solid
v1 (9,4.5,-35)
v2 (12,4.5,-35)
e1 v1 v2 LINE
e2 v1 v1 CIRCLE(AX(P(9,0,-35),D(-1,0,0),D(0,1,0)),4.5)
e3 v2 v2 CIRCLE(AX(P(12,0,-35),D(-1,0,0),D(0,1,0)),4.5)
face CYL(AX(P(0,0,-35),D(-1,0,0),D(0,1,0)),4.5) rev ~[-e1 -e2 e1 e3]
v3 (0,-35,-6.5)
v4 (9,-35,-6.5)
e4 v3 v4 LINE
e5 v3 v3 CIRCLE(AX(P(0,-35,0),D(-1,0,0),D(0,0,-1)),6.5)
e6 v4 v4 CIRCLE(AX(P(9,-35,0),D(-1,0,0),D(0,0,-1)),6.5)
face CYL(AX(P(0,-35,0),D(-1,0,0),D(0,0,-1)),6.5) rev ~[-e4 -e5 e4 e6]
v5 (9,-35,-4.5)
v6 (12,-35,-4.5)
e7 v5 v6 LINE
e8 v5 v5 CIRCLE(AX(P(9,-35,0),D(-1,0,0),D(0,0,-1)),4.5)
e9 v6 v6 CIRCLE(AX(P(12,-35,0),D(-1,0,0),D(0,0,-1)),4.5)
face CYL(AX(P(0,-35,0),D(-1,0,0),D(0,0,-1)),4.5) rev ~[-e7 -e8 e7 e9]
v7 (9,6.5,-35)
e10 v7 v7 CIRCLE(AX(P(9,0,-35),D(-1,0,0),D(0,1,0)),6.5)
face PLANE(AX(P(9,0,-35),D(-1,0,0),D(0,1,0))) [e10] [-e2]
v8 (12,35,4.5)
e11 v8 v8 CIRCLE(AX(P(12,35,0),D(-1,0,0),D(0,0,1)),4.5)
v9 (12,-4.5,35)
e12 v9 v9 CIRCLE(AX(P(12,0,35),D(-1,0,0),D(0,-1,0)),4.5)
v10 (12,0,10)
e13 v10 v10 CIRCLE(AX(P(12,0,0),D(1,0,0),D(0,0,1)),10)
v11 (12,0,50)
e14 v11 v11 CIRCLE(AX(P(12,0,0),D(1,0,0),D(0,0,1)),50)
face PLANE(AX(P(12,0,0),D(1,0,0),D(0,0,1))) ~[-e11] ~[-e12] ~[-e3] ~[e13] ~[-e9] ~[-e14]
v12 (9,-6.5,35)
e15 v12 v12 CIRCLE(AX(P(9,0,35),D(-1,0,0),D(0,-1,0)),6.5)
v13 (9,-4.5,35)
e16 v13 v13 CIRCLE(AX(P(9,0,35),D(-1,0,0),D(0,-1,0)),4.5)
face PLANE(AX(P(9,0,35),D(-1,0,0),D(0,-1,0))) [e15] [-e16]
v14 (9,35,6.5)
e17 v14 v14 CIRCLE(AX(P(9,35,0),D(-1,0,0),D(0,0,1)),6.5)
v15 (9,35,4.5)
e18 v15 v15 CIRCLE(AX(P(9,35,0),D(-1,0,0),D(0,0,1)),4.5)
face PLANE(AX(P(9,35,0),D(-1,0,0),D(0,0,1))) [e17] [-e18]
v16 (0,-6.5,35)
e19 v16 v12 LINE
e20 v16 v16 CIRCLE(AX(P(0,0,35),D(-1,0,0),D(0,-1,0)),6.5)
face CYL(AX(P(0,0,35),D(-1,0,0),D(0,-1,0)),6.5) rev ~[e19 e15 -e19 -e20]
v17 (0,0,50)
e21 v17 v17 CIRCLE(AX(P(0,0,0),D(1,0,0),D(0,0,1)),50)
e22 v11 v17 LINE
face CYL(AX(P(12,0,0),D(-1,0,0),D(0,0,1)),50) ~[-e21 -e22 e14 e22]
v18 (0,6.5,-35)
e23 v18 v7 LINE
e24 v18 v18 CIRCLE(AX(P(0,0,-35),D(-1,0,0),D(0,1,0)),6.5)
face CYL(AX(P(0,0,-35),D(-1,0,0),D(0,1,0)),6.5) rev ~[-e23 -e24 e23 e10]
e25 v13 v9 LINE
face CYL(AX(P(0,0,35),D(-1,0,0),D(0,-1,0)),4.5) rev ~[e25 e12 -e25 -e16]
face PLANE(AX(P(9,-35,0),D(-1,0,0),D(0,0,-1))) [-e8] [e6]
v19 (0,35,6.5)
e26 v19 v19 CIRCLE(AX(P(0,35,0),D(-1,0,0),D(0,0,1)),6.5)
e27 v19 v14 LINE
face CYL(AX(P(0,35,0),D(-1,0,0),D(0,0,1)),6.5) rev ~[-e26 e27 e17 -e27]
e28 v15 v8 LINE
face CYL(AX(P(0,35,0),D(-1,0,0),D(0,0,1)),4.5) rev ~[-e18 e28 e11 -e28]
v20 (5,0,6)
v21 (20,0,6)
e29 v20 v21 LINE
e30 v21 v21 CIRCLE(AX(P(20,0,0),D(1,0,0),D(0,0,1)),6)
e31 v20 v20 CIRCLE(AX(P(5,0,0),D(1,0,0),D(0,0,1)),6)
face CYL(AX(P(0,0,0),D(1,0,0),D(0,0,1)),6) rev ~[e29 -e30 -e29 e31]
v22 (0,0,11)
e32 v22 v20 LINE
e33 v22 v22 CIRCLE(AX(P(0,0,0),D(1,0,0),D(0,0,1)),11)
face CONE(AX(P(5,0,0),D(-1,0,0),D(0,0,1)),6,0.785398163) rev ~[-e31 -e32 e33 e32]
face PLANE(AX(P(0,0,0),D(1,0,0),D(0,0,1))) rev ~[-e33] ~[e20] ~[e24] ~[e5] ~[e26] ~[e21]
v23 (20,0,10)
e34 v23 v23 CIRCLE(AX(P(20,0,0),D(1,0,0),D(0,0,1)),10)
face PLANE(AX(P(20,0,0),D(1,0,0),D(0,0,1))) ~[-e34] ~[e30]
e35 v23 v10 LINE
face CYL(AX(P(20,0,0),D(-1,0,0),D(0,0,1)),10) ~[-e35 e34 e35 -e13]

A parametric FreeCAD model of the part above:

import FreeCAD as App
import Part
import Sketcher
from FreeCAD import Vector


def edges_at(feature, points):
    """Names of the edges that pass closest to the given points."""
    edges = feature.Shape.Edges
    near = lambda p: min(range(len(edges)), key=lambda i: edges[i].distToShape(Part.Vertex(*p))[0])
    return sorted({f"Edge{near(p) + 1}" for p in points})

doc = App.newDocument("Part")
body = doc.addObject("PartDesign::Body", "Body")

sketch1 = body.newObject("Sketcher::SketchObject", "Sketch")
sketch1.AttachmentSupport = (doc.getObject("XZ_Plane"), [""])
sketch1.MapMode = "FlatFace"
sketch1.addGeometry(Part.LineSegment(Vector(0, 50, 0), Vector(0, 6, 0)), False)
sketch1.addGeometry(Part.LineSegment(Vector(0, 6, 0), Vector(20, 6, 0)), False)
sketch1.addGeometry(Part.LineSegment(Vector(20, 6, 0), Vector(20, 10, 0)), False)
sketch1.addGeometry(Part.LineSegment(Vector(20, 10, 0), Vector(12, 10, 0)), False)
sketch1.addGeometry(Part.LineSegment(Vector(12, 10, 0), Vector(12, 50, 0)), False)
sketch1.addGeometry(Part.LineSegment(Vector(12, 50, 0), Vector(0, 50, 0)), False)
sketch1.addConstraint(Sketcher.Constraint("Coincident", 0, 2, 1, 1))
sketch1.addConstraint(Sketcher.Constraint("Coincident", 1, 2, 2, 1))
sketch1.addConstraint(Sketcher.Constraint("Coincident", 2, 2, 3, 1))
sketch1.addConstraint(Sketcher.Constraint("Coincident", 3, 2, 4, 1))
sketch1.addConstraint(Sketcher.Constraint("Coincident", 4, 2, 5, 1))
sketch1.addConstraint(Sketcher.Constraint("Coincident", 5, 2, 0, 1))
sketch1.addConstraint(Sketcher.Constraint("Vertical", 0))
sketch1.addConstraint(Sketcher.Constraint("Horizontal", 1))
sketch1.addConstraint(Sketcher.Constraint("Vertical", 2))
sketch1.addConstraint(Sketcher.Constraint("Horizontal", 3))
sketch1.addConstraint(Sketcher.Constraint("Vertical", 4))
sketch1.addConstraint(Sketcher.Constraint("Horizontal", 5))
sketch1.addConstraint(Sketcher.Constraint("PointOnObject", 0, 2, -2))
sketch1.addConstraint(Sketcher.Constraint("DistanceX", 1, 1, 1, 2, 20.0))
sketch1.addConstraint(Sketcher.Constraint("DistanceX", 3, 2, 3, 1, 8.0))
sketch1.addConstraint(Sketcher.Constraint("DistanceY", 0, 2, 0, 1, 44.0))
sketch1.addConstraint(Sketcher.Constraint("DistanceY", 2, 1, 2, 2, 4.0))
sketch1.addConstraint(Sketcher.Constraint("DistanceY", -1, 1, 0, 2, 6.0))
revolution = body.newObject("PartDesign::Revolution", "Revolution")
revolution.Profile = sketch1
revolution.ReferenceAxis = (sketch1, ["H_Axis"])
revolution.Angle = 360

sketch2 = body.newObject("Sketcher::SketchObject", "Sketch001")
sketch2.AttachmentSupport = (doc.getObject("YZ_Plane"), [""])
sketch2.MapMode = "FlatFace"
sketch2.addGeometry(Part.Circle(Vector(0, 35, 0), Vector(0, 0, 1), 6.5), False)
sketch2.addGeometry(Part.Circle(Vector(0, 35, 0), Vector(0, 0, 1), 4.5), False)
sketch2.addConstraint(Sketcher.Constraint("Coincident", 1, 3, 0, 3))
sketch2.addConstraint(Sketcher.Constraint("PointOnObject", 0, 3, -2))
sketch2.addConstraint(Sketcher.Constraint("Diameter", 0, 13.0))
sketch2.addConstraint(Sketcher.Constraint("Diameter", 1, 9.0))
sketch2.addConstraint(Sketcher.Constraint("DistanceY", -1, 1, 0, 3, 35.0))
pocket1 = body.newObject("PartDesign::Pocket", "Pocket")
pocket1.Profile = sketch2
pocket1.Length = 9
pocket1.Reversed = True

sketch3 = body.newObject("Sketcher::SketchObject", "Sketch002")
sketch3.AttachmentSupport = (doc.getObject("YZ_Plane"), [""])
sketch3.MapMode = "FlatFace"
sketch3.addGeometry(Part.Circle(Vector(0, 35, 0), Vector(0, 0, 1), 4.5), False)
sketch3.addConstraint(Sketcher.Constraint("PointOnObject", 0, 3, -2))
sketch3.addConstraint(Sketcher.Constraint("Diameter", 0, 9.0))
sketch3.addConstraint(Sketcher.Constraint("DistanceY", -1, 1, 0, 3, 35.0))
pocket2 = body.newObject("PartDesign::Pocket", "Pocket001")
pocket2.Profile = sketch3
pocket2.Length = 12
pocket2.Reversed = True
doc.recompute()

polarpattern = body.newObject("PartDesign::PolarPattern", "PolarPattern")
polarpattern.Originals = [pocket1, pocket2]
polarpattern.Axis = (doc.getObject("X_Axis"), [""])
polarpattern.Angle = 360
polarpattern.Occurrences = 4
body.Tip = polarpattern
doc.recompute()

chamfer = body.newObject("PartDesign::Chamfer", "Chamfer")
chamfer.Base = (polarpattern, edges_at(polarpattern, [(0, 0, -6)]))
chamfer.Size = 5

doc.recompute()
